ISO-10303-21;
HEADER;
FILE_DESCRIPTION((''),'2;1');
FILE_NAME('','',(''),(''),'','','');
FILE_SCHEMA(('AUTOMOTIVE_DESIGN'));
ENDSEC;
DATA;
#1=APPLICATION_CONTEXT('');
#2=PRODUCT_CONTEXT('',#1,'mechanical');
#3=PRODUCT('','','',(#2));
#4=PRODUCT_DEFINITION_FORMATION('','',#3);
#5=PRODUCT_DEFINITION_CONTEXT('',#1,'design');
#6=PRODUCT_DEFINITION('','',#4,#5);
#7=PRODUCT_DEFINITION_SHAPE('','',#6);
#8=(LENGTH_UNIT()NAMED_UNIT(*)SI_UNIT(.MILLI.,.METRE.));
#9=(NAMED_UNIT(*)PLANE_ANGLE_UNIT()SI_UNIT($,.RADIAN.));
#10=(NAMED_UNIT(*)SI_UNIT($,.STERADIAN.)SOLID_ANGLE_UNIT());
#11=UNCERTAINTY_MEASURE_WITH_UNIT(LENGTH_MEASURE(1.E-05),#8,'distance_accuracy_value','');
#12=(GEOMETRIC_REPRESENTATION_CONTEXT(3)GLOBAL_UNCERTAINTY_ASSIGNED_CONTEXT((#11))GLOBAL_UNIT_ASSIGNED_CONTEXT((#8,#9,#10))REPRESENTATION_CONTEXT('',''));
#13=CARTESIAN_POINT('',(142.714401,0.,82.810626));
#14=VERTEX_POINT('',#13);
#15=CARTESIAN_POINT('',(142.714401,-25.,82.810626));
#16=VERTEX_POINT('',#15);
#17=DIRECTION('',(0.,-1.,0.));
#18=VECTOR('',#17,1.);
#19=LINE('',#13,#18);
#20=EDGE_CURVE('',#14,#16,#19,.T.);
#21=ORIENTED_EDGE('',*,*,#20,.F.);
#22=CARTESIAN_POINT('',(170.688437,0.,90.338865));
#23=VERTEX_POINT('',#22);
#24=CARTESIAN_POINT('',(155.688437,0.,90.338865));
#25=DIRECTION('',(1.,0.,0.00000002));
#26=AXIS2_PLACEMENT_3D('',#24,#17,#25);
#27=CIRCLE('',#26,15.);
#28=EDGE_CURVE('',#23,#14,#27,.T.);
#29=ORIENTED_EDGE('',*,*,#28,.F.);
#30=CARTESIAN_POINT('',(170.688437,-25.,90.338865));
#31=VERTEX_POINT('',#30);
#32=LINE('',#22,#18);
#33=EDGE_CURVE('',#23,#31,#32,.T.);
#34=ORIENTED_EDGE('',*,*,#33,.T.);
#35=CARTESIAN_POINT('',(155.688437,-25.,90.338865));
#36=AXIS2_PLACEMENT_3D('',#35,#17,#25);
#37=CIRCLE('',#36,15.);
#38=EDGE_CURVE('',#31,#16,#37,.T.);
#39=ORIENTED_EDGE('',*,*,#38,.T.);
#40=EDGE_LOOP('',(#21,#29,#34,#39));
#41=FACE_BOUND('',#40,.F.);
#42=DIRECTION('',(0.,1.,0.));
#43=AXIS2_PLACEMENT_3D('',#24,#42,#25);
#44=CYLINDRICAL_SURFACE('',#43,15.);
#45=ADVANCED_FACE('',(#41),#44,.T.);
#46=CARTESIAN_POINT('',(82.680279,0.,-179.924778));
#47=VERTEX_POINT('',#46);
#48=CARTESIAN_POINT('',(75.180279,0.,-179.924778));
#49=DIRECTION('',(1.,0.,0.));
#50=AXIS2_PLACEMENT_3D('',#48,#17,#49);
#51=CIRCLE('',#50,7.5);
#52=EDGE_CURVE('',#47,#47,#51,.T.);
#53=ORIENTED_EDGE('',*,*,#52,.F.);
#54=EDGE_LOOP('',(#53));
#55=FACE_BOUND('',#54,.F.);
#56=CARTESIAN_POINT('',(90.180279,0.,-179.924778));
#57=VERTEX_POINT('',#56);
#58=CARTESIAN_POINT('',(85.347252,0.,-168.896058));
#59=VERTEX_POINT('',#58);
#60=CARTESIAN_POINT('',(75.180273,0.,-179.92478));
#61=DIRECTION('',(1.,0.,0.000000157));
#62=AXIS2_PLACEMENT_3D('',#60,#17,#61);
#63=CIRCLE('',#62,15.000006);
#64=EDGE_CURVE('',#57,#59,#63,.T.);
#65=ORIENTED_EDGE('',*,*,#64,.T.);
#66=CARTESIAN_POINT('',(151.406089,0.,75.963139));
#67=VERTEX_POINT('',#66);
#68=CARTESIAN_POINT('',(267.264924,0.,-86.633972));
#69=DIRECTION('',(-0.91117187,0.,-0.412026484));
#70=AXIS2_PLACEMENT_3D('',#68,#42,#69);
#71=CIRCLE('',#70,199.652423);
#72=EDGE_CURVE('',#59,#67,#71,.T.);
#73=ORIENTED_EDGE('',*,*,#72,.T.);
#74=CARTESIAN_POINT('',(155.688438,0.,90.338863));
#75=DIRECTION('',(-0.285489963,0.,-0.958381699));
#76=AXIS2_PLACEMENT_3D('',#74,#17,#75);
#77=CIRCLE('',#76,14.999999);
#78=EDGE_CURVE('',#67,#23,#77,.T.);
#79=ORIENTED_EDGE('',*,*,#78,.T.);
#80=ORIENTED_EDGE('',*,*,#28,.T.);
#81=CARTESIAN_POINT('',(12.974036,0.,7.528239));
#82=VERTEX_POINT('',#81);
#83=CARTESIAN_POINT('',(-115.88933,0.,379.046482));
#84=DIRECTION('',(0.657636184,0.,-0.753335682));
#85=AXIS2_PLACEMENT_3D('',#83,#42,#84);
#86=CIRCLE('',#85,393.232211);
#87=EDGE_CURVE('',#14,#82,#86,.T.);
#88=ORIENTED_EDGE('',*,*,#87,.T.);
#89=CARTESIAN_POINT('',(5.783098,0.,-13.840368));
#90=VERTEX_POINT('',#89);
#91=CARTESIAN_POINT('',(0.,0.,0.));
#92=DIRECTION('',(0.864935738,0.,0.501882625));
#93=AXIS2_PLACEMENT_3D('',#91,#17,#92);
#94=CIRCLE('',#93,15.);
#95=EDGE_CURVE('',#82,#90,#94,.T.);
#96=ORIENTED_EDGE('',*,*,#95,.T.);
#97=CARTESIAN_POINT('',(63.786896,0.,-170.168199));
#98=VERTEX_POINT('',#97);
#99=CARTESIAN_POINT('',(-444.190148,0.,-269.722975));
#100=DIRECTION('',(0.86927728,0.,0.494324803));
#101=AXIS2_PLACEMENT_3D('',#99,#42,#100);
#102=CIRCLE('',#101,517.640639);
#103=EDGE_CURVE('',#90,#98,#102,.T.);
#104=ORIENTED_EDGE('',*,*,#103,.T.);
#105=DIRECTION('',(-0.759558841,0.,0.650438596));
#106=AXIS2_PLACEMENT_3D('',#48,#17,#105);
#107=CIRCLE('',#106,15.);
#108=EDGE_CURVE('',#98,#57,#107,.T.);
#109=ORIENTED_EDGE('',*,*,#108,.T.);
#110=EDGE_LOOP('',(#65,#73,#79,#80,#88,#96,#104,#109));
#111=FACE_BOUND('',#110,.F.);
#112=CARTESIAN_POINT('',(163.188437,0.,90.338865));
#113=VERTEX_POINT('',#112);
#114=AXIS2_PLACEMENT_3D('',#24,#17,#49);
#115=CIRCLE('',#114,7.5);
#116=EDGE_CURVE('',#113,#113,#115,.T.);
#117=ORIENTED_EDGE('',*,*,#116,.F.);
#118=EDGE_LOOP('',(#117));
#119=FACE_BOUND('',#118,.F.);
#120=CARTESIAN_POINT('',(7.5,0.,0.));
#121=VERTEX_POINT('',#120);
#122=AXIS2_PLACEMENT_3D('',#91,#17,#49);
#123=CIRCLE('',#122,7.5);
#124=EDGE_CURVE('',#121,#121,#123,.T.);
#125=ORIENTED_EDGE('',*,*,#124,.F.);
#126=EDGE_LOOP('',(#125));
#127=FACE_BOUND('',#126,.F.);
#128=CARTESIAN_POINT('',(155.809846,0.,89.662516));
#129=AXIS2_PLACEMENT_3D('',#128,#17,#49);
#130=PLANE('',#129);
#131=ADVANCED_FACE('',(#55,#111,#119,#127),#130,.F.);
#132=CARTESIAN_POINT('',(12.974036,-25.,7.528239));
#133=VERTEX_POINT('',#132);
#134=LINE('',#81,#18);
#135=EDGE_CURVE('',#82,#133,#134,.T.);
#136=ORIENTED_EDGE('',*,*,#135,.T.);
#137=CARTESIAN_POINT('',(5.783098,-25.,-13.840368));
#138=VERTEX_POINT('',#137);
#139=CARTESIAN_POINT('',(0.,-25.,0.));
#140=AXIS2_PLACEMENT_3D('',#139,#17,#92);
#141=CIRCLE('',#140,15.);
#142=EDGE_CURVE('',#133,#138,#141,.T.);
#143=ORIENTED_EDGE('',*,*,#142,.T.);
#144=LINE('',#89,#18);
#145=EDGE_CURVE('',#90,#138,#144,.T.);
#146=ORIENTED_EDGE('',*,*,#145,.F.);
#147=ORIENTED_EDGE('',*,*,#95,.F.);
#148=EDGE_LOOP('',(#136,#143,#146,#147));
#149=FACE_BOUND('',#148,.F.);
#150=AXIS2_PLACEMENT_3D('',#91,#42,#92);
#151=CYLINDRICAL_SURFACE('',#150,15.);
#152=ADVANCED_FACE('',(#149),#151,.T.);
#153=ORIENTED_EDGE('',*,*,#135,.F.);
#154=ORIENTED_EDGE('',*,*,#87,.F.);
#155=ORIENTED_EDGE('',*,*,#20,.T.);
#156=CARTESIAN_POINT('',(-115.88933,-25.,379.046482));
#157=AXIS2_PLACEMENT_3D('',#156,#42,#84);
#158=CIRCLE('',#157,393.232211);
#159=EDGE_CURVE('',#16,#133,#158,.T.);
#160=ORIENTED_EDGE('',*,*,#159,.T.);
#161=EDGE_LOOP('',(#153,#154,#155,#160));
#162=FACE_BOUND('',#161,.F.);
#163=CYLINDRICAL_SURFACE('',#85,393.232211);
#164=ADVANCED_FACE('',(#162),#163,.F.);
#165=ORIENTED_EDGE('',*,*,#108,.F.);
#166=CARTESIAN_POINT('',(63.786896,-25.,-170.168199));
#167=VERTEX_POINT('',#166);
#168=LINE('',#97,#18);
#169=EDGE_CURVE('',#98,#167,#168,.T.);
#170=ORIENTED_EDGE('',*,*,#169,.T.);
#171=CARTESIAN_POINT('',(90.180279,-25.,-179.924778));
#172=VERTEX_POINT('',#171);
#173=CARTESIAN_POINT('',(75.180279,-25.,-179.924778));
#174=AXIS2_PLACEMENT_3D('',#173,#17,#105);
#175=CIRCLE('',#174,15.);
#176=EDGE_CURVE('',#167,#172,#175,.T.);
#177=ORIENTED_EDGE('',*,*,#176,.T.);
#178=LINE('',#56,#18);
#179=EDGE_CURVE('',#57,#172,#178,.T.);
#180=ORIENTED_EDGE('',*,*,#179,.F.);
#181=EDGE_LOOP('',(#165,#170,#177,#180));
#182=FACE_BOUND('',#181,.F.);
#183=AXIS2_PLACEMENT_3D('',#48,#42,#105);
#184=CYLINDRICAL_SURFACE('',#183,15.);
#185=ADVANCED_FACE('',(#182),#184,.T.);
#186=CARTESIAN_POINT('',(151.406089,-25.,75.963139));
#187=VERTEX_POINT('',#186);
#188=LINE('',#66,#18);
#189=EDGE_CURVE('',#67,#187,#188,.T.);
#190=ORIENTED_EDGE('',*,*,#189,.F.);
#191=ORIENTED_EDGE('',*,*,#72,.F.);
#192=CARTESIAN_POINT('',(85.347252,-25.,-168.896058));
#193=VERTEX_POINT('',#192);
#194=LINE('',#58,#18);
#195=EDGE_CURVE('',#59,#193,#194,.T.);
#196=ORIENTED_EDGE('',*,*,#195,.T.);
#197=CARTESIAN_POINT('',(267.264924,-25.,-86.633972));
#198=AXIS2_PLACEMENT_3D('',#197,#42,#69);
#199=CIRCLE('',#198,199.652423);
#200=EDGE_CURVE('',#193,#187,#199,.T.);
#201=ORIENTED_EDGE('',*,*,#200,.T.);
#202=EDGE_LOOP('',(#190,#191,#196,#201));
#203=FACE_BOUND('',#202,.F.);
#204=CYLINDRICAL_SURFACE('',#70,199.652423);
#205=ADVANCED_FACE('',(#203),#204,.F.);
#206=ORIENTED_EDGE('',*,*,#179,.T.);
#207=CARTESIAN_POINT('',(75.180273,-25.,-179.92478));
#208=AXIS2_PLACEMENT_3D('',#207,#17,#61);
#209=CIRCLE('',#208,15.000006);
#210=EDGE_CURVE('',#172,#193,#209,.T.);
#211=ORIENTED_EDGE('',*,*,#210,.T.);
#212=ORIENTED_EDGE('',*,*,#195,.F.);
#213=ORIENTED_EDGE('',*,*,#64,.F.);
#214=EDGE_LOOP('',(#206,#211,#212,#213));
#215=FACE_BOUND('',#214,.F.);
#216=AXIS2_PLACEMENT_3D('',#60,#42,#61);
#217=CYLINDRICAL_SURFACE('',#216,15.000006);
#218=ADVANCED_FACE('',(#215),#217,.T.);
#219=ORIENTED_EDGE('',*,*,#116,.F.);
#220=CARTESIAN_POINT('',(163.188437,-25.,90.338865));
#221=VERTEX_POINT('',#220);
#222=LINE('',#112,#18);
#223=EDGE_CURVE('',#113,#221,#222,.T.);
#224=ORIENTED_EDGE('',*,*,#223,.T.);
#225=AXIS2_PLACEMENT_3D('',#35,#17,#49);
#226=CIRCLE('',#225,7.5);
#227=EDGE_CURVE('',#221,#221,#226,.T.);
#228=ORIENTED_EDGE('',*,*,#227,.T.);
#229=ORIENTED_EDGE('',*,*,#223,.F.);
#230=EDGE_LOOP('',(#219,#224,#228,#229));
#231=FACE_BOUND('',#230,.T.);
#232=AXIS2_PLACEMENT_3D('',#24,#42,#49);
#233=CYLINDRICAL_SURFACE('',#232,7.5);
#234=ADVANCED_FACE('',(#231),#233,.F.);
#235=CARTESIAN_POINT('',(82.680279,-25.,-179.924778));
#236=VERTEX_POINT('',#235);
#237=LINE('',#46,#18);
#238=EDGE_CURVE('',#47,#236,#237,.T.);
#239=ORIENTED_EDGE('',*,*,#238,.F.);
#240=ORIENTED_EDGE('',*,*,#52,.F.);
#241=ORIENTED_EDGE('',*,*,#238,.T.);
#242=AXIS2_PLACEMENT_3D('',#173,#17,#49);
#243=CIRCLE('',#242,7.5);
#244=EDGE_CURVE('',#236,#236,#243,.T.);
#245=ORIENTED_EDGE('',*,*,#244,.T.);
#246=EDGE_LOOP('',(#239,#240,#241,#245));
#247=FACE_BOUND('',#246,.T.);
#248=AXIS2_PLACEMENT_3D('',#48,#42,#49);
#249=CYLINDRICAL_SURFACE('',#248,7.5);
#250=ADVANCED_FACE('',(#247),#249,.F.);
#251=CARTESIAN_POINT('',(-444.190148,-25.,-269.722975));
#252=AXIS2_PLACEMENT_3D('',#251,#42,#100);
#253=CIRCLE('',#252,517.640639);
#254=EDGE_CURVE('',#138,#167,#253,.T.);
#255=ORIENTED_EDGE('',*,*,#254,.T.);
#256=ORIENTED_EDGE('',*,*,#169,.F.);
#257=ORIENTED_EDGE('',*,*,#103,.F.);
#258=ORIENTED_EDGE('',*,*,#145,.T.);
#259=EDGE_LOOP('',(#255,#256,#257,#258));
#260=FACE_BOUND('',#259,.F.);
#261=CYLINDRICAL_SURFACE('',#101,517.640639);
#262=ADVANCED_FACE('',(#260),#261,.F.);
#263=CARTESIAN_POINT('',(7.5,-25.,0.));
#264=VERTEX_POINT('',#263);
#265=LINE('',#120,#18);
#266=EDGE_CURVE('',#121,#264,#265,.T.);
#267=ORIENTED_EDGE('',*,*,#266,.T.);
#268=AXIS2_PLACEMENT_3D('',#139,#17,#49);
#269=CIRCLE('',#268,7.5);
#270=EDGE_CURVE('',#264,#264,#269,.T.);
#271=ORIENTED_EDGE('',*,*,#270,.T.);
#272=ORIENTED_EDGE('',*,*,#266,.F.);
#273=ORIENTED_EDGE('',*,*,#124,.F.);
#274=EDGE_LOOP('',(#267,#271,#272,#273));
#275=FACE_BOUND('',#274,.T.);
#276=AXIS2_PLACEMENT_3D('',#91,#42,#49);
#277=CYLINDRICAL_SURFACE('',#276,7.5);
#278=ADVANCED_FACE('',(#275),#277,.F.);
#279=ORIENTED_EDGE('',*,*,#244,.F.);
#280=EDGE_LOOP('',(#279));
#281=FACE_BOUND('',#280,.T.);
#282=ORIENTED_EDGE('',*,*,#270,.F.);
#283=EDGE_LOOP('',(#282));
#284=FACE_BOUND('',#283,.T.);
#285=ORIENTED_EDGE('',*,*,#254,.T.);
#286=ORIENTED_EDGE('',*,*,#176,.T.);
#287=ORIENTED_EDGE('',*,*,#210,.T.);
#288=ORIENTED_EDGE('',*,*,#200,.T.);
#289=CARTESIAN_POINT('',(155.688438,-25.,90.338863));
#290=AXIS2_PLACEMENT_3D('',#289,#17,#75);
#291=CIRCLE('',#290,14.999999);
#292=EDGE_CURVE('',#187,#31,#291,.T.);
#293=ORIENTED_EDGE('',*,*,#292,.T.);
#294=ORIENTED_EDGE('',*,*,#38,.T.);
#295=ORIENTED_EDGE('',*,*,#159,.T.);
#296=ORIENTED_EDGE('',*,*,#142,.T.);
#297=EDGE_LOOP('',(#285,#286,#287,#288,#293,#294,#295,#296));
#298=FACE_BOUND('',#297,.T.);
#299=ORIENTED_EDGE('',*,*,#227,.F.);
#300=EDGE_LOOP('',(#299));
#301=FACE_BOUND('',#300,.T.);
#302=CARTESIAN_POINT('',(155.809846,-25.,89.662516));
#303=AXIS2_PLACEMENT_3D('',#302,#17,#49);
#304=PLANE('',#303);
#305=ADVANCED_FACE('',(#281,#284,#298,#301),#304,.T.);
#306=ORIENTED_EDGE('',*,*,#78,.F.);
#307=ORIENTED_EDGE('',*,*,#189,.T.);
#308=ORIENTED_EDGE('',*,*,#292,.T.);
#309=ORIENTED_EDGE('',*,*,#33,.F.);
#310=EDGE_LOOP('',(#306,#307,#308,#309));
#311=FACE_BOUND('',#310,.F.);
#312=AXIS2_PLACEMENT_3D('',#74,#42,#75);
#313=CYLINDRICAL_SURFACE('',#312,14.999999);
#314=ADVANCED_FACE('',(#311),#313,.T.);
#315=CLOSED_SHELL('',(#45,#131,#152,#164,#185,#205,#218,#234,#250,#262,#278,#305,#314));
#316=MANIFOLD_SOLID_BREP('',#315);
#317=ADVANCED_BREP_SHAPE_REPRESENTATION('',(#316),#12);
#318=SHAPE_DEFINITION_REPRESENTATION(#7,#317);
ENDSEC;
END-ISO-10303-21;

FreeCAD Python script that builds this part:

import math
import FreeCAD as App
import Part
import Sketcher

V = App.Vector

doc = App.newDocument("Part")
params = doc.addObject("Spreadsheet::Sheet", "Params")
for row, (alias, value) in enumerate([
    ("sketch1_diameter", "15 mm"),
    ("sketch1_radius", "14.999999 mm"),
    ("pad1_length", "25 mm"),
], start=1):
    params.set(f"A{row}", alias)
    params.set(f"B{row}", "=" + value)
    params.setAlias(f"B{row}", alias)

body = doc.addObject("PartDesign::Body", "Body")

# Sketch on XZ plane
sketch1 = doc.addObject("Sketcher::SketchObject", "Sketch")
body.addObject(sketch1)
sketch1.AttachmentSupport = (doc.XZ_Plane, [""])
sketch1.MapMode = "FlatFace"
sketch1.addGeometry([
    Part.ArcOfCircle(Part.Circle(V(155.688438, 90.338863, 0), V(0, 0, 1), 14.999999), math.radians(-106.588138), math.radians(0.000006)),  # 0
    Part.ArcOfCircle(Part.Circle(V(155.688437, 90.338865, 0), V(0, 0, 1), 15), math.radians(0.000001), math.radians(210.124629)),  # 1
    Part.ArcOfCircle(Part.Circle(V(-115.88933, 379.046482, 0), V(0, 0, 1), 393.232211), math.radians(-70.870585), math.radians(-48.880157)),  # 2
    Part.ArcOfCircle(Part.Circle(V(0, 0, 0), V(0, 0, 1), 15), math.radians(30.124632), math.radians(292.67726)),  # 3
    Part.ArcOfCircle(Part.Circle(V(-444.190148, -269.722975, 0), V(0, 0, 1), 517.640639), math.radians(11.088448), math.radians(29.625237)),  # 4
    Part.ArcOfCircle(Part.Circle(V(75.180279, -179.924778, 0), V(0, 0, 1), 15), math.radians(139.425322), math.radians(360)),  # 5
    Part.ArcOfCircle(Part.Circle(V(75.180273, -179.92478, 0), V(0, 0, 1), 15.000006), math.radians(0.000009), math.radians(47.328165)),  # 6
    Part.ArcOfCircle(Part.Circle(V(267.264924, -86.633972, 0), V(0, 0, 1), 199.652423), math.radians(125.471834), math.radians(204.332199)),  # 7
    Part.Circle(V(75.180279, -179.924778, 0), V(0, 0, 1), 7.5),  # 8
    Part.Circle(V(0, 0, 0), V(0, 0, 1), 7.5),  # 9
    Part.Circle(V(155.688437, 90.338865, 0), V(0, 0, 1), 7.5),  # 10
], False)
sketch1.addConstraint([
    Sketcher.Constraint("Tangent", 0, 2, 1, 1),
    Sketcher.Constraint("Coincident", 1, 2, 2, 2),
    Sketcher.Constraint("Coincident", 2, 1, 3, 1),
    Sketcher.Constraint("Coincident", 3, 2, 4, 2),
    Sketcher.Constraint("Coincident", 4, 1, 5, 1),
    Sketcher.Constraint("Tangent", 5, 2, 6, 1),
    Sketcher.Constraint("Coincident", 6, 2, 7, 2),
    Sketcher.Constraint("Coincident", 7, 1, 0, 1),
    Sketcher.Constraint("Coincident", 3, 3, -1, 1),
    Sketcher.Constraint("Coincident", 9, 3, -1, 1),
    Sketcher.Constraint("Coincident", 8, 3, 5, 3),
    Sketcher.Constraint("Coincident", 10, 3, 0, 3),
    Sketcher.Constraint("Equal", 0, 1),
    Sketcher.Constraint("Equal", 1, 3),
    Sketcher.Constraint("Equal", 3, 5),
    Sketcher.Constraint("Equal", 8, 9),
    Sketcher.Constraint("Equal", 9, 10),
    Sketcher.Constraint("Horizontal", 10, 3, 0, 2),
    Sketcher.Constraint("Horizontal", 8, 3, 5, 2),
    Sketcher.Constraint("Diameter", 8, 15.0),
    Sketcher.Constraint("Radius", 0, 14.999999),
    Sketcher.Constraint("Radius", 2, 393.232211),
    Sketcher.Constraint("Radius", 4, 517.640639),
    Sketcher.Constraint("Radius", 6, 15.000006),
    Sketcher.Constraint("Radius", 7, 199.652423),
    Sketcher.Constraint("DistanceX", -1, 1, 1, 2, 142.714401),
    Sketcher.Constraint("DistanceY", 4, 1, -1, 1, 170.168199),
    Sketcher.Constraint("DistanceX", 2, 1, 10, 3, 142.714401),
    Sketcher.Constraint("DistanceX", 3, 3, 3, 2, 5.783098),
    Sketcher.Constraint("DistanceX", 3, 2, 4, 1, 58.003798),
    Sketcher.Constraint("DistanceX", -1, 1, 0, 3, 155.688438),
    Sketcher.Constraint("DistanceX", 2, 3, -1, 1, 115.88933),
    Sketcher.Constraint("DistanceX", -1, 1, 5, 3, 75.180279),
    Sketcher.Constraint("DistanceY", 7, 3, -1, 1, 86.633972),
    Sketcher.Constraint("DistanceX", -1, 1, 6, 2, 85.347252),
])
sketch1.setExpression("Constraints[19]", "Params.sketch1_diameter")
sketch1.setExpression("Constraints[20]", "Params.sketch1_radius")
pad1 = doc.addObject("PartDesign::Pad", "Pad")
body.addObject(pad1)
pad1.Profile = sketch1
pad1.setExpression("Length", "Params.pad1_length")

doc.recompute()
